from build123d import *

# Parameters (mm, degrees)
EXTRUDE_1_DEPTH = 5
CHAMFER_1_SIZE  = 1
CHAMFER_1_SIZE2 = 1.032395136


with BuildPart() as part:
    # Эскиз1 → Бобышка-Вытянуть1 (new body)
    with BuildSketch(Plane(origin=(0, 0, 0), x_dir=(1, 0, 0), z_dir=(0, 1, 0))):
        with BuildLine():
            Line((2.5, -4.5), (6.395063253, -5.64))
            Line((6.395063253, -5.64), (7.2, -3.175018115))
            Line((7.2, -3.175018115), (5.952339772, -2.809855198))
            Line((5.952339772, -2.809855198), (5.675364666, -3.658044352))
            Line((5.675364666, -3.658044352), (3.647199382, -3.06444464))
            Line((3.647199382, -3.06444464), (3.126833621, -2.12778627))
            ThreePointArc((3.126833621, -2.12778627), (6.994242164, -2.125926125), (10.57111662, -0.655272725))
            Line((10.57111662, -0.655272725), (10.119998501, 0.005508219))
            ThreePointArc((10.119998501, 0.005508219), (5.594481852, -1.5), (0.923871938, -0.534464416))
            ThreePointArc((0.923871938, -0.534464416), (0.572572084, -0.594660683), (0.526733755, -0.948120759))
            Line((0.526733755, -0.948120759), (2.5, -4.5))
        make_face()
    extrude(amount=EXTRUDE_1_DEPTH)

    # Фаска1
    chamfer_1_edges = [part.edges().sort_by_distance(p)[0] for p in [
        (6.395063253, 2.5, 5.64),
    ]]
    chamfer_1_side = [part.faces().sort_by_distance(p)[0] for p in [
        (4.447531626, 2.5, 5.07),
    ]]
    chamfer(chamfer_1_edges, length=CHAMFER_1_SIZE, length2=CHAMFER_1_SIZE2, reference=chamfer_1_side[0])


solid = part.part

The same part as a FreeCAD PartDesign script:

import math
import FreeCAD as App
import Part
import Sketcher
from FreeCAD import Vector
Q = App.Units.Quantity


def edges_at(feature, points):
    """Names of the edges that pass closest to the given points."""
    edges = feature.Shape.Edges
    near = lambda p: min(range(len(edges)), key=lambda i: edges[i].distToShape(Part.Vertex(*p))[0])
    return sorted({f"Edge{near(p) + 1}" for p in points})

doc = App.newDocument("Part")
body = doc.addObject("PartDesign::Body", "Body")

sketch1 = doc.addObject("Sketcher::SketchObject", "Sketch")
body.addObject(sketch1)
sketch1.AttachmentSupport = (doc.XZ_Plane, [""])
sketch1.MapMode = "FlatFace"
sketch1.addGeometry(Part.LineSegment(Vector(2.5, 4.5, 0), Vector(6.395063, 5.64, 0)), False)
sketch1.addGeometry(Part.LineSegment(Vector(6.395063, 5.64, 0), Vector(7.2, 3.175018, 0)), False)
sketch1.addGeometry(Part.LineSegment(Vector(7.2, 3.175018, 0), Vector(5.95234, 2.809855, 0)), False)
sketch1.addGeometry(Part.LineSegment(Vector(5.95234, 2.809855, 0), Vector(5.675365, 3.658044, 0)), False)
sketch1.addGeometry(Part.LineSegment(Vector(5.675365, 3.658044, 0), Vector(3.647199, 3.064445, 0)), False)
sketch1.addGeometry(Part.LineSegment(Vector(3.647199, 3.064445, 0), Vector(3.126834, 2.127786, 0)), False)
sketch1.addGeometry(Part.ArcOfCircle(Part.Circle(Vector(5.055824, -7.673735, 0), Vector(0, 0, 1), 9.989535), math.radians(56.488316), math.radians(101.133817)), False)
sketch1.addGeometry(Part.LineSegment(Vector(10.571117, 0.655273, 0), Vector(10.119999, -0.005508, 0)), False)
sketch1.addGeometry(Part.ArcOfCircle(Part.Circle(Vector(5.055824, -7.673735, 0), Vector(0, 0, 1), 9.189535), math.radians(56.558823), math.radians(116.720375)), False)
sketch1.addGeometry(Part.ArcOfCircle(Part.Circle(Vector(0.788981, 0.802428, 0), Vector(0, 0, 1), 0.3), math.radians(150.945396), math.radians(296.720375)), False)
sketch1.addGeometry(Part.LineSegment(Vector(0.526734, 0.948121, 0), Vector(2.5, 4.5, 0)), False)
sketch1.addConstraint(Sketcher.Constraint("Coincident", 0, 2, 1, 1))
sketch1.addConstraint(Sketcher.Constraint("Coincident", 1, 2, 2, 1))
sketch1.addConstraint(Sketcher.Constraint("Coincident", 2, 2, 3, 1))
sketch1.addConstraint(Sketcher.Constraint("Coincident", 3, 2, 4, 1))
sketch1.addConstraint(Sketcher.Constraint("Coincident", 4, 2, 5, 1))
sketch1.addConstraint(Sketcher.Constraint("Coincident", 5, 2, 6, 2))
sketch1.addConstraint(Sketcher.Constraint("Coincident", 6, 1, 7, 1))
sketch1.addConstraint(Sketcher.Constraint("Coincident", 7, 2, 8, 1))
sketch1.addConstraint(Sketcher.Constraint("Tangent", 8, 2, 9, 2))
sketch1.addConstraint(Sketcher.Constraint("Tangent", 9, 1, 10, 1))
sketch1.addConstraint(Sketcher.Constraint("Coincident", 10, 2, 0, 1))
sketch1.addConstraint(Sketcher.Constraint("Coincident", 8, 3, 6, 3))
sketch1.addConstraint(Sketcher.Constraint("Parallel", 0, 2))
sketch1.addConstraint(Sketcher.Constraint("Parallel", 1, 3))
sketch1.addConstraint(Sketcher.Constraint("Parallel", 2, 4))
sketch1.addConstraint(Sketcher.Constraint("Parallel", 5, 10))
sketch1.addConstraint(Sketcher.Constraint("Radius", 9, Q("0.3 mm")))
sketch1.addConstraint(Sketcher.Constraint("Distance", 2, Q("1.3 mm")))
sketch1.addConstraint(Sketcher.Constraint("DistanceX", -1, 1, 1, 2, Q("7.2 mm")))
sketch1.addConstraint(Sketcher.Constraint("DistanceX", -1, 1, 10, 2, Q("2.5 mm")))
sketch1.addConstraint(Sketcher.Constraint("DistanceY", -1, 1, 10, 2, Q("4.5 mm")))
sketch1.addConstraint(Sketcher.Constraint("DistanceY", -1, 1, 0, 2, Q("5.64 mm")))
sketch1.addConstraint(Sketcher.Constraint("DistanceX", -1, 1, 7, 2, Q("10.119999 mm")))
sketch1.addConstraint(Sketcher.Constraint("Radius", 6, Q("9.989535 mm")))
sketch1.addConstraint(Sketcher.Constraint("Radius", 8, Q("9.189535 mm")))
sketch1.addConstraint(Sketcher.Constraint("Distance", 5, Q("1.071499 mm")))
sketch1.addConstraint(Sketcher.Constraint("DistanceX", -1, 1, 4, 2, Q("3.647199 mm")))
sketch1.addConstraint(Sketcher.Constraint("DistanceX", 3, 2, 0, 2, Q("0.719699 mm")))
sketch1.addConstraint(Sketcher.Constraint("DistanceY", 4, 2, 3, 2, Q("0.5936 mm")))
sketch1.addConstraint(Sketcher.Constraint("DistanceX", 9, 1, 5, 2, Q("2.6001 mm")))
sketch1.addConstraint(Sketcher.Constraint("Distance", 1, Q("2.593079 mm")))
sketch1.addConstraint(Sketcher.Constraint("DistanceX", -1, 1, 9, 3, Q("0.788981 mm")))
sketch1.addConstraint(Sketcher.Constraint("DistanceX", 3, 2, 6, 1, Q("4.895752 mm")))
pad1 = doc.addObject("PartDesign::Pad", "Pad")
body.addObject(pad1)
pad1.Profile = sketch1
pad1.Length = 5
pad1.Reversed = True
doc.recompute()

chamfer = doc.addObject("PartDesign::Chamfer", "Chamfer")
body.addObject(chamfer)
chamfer.Base = (pad1, edges_at(pad1, [(6.395, 2.5, 5.64)]))
chamfer.ChamferType = "Two distances"
chamfer.Size = 1
chamfer.Size2 = 1.032395

doc.recompute()
